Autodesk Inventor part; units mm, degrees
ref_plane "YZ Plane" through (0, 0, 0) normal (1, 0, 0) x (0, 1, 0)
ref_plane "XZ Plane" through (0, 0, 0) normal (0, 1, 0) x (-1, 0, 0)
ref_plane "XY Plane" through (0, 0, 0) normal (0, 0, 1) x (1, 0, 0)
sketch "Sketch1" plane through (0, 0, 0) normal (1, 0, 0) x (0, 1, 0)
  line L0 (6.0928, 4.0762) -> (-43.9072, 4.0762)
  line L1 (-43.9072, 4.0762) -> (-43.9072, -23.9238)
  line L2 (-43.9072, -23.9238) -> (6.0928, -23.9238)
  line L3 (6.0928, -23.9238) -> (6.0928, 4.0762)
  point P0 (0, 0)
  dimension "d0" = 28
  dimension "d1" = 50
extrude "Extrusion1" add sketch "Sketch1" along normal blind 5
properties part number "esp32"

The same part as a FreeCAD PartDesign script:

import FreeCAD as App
import Part
import Sketcher


def add_polygon(sketch, points):
    """Adds a closed chain of lines whose ends are joined by coincident constraints."""
    first, n = sketch.GeometryCount, len(points)
    for a, b in zip(points, points[1:] + points[:1]):
        sketch.addGeometry(Part.LineSegment(App.Vector(*a, 0), App.Vector(*b, 0)), False)
    for i in range(n):
        sketch.addConstraint(Sketcher.Constraint("Coincident", first + i, 2, first + (i + 1) % n, 1))

doc = App.newDocument("Part")
body = doc.addObject("PartDesign::Body", "Body")

# Sketch on YZ plane
sketch1 = doc.addObject("Sketcher::SketchObject", "Sketch")
body.addObject(sketch1)
sketch1.AttachmentSupport = (doc.YZ_Plane, [""])
sketch1.MapMode = "FlatFace"
add_polygon(sketch1, [(6, -24), (6, 4), (-44, 4), (-44, -24)])  # lines 0-3
sketch1.addConstraint(Sketcher.Constraint("Vertical", 0))
sketch1.addConstraint(Sketcher.Constraint("Horizontal", 1))
sketch1.addConstraint(Sketcher.Constraint("Vertical", 2))
sketch1.addConstraint(Sketcher.Constraint("Horizontal", 3))
sketch1.addConstraint(Sketcher.Constraint("DistanceX", 1, 2, 1, 1, 50.0))
sketch1.addConstraint(Sketcher.Constraint("DistanceY", 0, 1, 0, 2, 28.0))
sketch1.addConstraint(Sketcher.Constraint("DistanceX", -1, 1, 0, 2, 6.0928))
sketch1.addConstraint(Sketcher.Constraint("DistanceY", -1, 1, 0, 2, 4.0762))
pad1 = doc.addObject("PartDesign::Pad", "Pad")
body.addObject(pad1)
pad1.Profile = sketch1
pad1.Length = 5

doc.recompute()
